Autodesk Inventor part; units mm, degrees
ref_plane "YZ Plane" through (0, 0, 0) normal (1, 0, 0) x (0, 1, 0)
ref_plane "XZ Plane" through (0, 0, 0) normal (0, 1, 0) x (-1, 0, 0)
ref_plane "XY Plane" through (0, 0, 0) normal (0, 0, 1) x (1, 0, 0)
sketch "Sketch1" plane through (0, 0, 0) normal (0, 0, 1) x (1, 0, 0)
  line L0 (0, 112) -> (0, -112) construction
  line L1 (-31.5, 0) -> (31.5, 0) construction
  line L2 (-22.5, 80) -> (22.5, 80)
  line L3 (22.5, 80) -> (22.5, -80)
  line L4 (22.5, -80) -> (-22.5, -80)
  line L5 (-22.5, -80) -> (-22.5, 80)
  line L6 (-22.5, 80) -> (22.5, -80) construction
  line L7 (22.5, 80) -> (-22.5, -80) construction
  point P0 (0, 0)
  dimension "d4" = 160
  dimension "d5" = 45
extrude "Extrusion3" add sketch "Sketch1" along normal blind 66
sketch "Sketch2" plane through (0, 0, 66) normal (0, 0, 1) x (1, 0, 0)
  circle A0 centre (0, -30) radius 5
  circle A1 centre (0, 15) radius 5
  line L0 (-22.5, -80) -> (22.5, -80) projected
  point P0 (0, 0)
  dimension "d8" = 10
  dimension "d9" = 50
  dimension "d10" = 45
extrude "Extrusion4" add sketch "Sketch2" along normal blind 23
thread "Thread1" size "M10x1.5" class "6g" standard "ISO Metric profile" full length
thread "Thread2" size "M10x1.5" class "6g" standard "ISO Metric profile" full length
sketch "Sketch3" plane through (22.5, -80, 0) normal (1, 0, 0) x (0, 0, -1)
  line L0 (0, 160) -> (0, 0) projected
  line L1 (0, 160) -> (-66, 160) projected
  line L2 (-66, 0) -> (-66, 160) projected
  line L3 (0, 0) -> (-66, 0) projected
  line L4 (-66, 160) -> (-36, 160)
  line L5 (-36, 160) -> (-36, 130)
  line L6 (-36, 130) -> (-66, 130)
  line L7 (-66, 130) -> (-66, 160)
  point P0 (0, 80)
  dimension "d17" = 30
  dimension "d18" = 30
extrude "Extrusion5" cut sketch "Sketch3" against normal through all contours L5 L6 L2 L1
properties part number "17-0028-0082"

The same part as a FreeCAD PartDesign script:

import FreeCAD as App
import Part
import Sketcher

V = App.Vector
Q = App.Units.Quantity


def add_polygon(sketch, points):
    """Adds a closed chain of lines whose ends are joined by coincident constraints."""
    first, n = sketch.GeometryCount, len(points)
    for a, b in zip(points, points[1:] + points[:1]):
        sketch.addGeometry(Part.LineSegment(App.Vector(*a, 0), App.Vector(*b, 0)), False)
    for i in range(n):
        sketch.addConstraint(Sketcher.Constraint("Coincident", first + i, 2, first + (i + 1) % n, 1))

doc = App.newDocument("Part")
params = doc.addObject("Spreadsheet::Sheet", "Params")
for row, (alias, value) in enumerate([
    ("sketch1_width", "45 mm"),
    ("sketch1_height", "160 mm"),
    ("pad1_length", "66 mm"),
    ("sketch2_diameter", "10 mm"),
    ("pad2_length", "23 mm"),
    ("sketch3_width", "30 mm"),
], start=1):
    params.set(f"A{row}", alias)
    params.set(f"B{row}", "=" + value)
    params.setAlias(f"B{row}", alias)

body = doc.addObject("PartDesign::Body", "Body")

# Sketch on XY plane
sketch1 = body.newObject("Sketcher::SketchObject", "Sketch")
sketch1.AttachmentSupport = (doc.getObject("XY_Plane"), [""])
sketch1.MapMode = "FlatFace"
add_polygon(sketch1, [(22, 80), (-22, 80), (-22, -80), (22, -80)])  # lines 0-3
sketch1.addConstraint([
    Sketcher.Constraint("Horizontal", 0),
    Sketcher.Constraint("Vertical", 1),
    Sketcher.Constraint("Horizontal", 2),
    Sketcher.Constraint("Vertical", 3),
    Sketcher.Constraint("Symmetric", 0, 2, 2, 2, -1, 1),
    Sketcher.Constraint("DistanceX", 0, 2, 0, 1, Q("45 mm")),
    Sketcher.Constraint("DistanceY", 1, 2, 1, 1, Q("160 mm")),
])
sketch1.setExpression("Constraints[9]", "Params.sketch1_width")
sketch1.setExpression("Constraints[10]", "Params.sketch1_height")
pad1 = body.newObject("PartDesign::Pad", "Pad")
pad1.Profile = sketch1
pad1.setExpression("Length", "Params.pad1_length")

# Sketch on XY plane
sketch2 = body.newObject("Sketcher::SketchObject", "Sketch001")
sketch2.AttachmentSupport = (doc.getObject("XY_Plane"), [""])
sketch2.MapMode = "FlatFace"
sketch2.AttachmentOffset = App.Placement(V(0, 0, 66), App.Rotation())
sketch2.addGeometry([
    Part.Circle(V(0, -30, 0), V(0, 0, 1), 5),
    Part.Circle(V(0, 15, 0), V(0, 0, 1), 5),
], False)
sketch2.addConstraint([
    Sketcher.Constraint("Equal", 0, 1),
    Sketcher.Constraint("PointOnObject", 0, 3, -2),
    Sketcher.Constraint("PointOnObject", 1, 3, -2),
    Sketcher.Constraint("Diameter", 0, Q("10 mm")),
    Sketcher.Constraint("DistanceY", 0, 3, 1, 3, Q("45 mm")),
    Sketcher.Constraint("DistanceY", 0, 3, -1, 1, Q("30 mm")),
])
sketch2.setExpression("Constraints[3]", "Params.sketch2_diameter")
pad2 = body.newObject("PartDesign::Pad", "Pad001")
pad2.Profile = sketch2
pad2.setExpression("Length", "Params.pad2_length")

# Sketch on YZ plane
sketch3 = body.newObject("Sketcher::SketchObject", "Sketch002")
sketch3.AttachmentSupport = (doc.getObject("YZ_Plane"), [""])
sketch3.MapMode = "FlatFace"
sketch3.AttachmentOffset = App.Placement(V(0, 0, 22.5), App.Rotation())
add_polygon(sketch3, [(50, 36), (80, 36), (80, 66), (50, 66)])  # lines 0-3
sketch3.addConstraint([
    Sketcher.Constraint("Horizontal", 0),
    Sketcher.Constraint("Vertical", 1),
    Sketcher.Constraint("Horizontal", 2),
    Sketcher.Constraint("Vertical", 3),
    Sketcher.Constraint("Equal", 2, 1),
    Sketcher.Constraint("DistanceX", 0, 1, 0, 2, Q("30 mm")),
    Sketcher.Constraint("DistanceX", -1, 1, 0, 2, Q("80 mm")),
    Sketcher.Constraint("DistanceY", -1, 1, 0, 2, Q("36 mm")),
])
sketch3.setExpression("Constraints[9]", "Params.sketch3_width")
pocket1 = body.newObject("PartDesign::Pocket", "Pocket")
pocket1.Profile = sketch3
pocket1.Type = "ThroughAll"

doc.recompute()
